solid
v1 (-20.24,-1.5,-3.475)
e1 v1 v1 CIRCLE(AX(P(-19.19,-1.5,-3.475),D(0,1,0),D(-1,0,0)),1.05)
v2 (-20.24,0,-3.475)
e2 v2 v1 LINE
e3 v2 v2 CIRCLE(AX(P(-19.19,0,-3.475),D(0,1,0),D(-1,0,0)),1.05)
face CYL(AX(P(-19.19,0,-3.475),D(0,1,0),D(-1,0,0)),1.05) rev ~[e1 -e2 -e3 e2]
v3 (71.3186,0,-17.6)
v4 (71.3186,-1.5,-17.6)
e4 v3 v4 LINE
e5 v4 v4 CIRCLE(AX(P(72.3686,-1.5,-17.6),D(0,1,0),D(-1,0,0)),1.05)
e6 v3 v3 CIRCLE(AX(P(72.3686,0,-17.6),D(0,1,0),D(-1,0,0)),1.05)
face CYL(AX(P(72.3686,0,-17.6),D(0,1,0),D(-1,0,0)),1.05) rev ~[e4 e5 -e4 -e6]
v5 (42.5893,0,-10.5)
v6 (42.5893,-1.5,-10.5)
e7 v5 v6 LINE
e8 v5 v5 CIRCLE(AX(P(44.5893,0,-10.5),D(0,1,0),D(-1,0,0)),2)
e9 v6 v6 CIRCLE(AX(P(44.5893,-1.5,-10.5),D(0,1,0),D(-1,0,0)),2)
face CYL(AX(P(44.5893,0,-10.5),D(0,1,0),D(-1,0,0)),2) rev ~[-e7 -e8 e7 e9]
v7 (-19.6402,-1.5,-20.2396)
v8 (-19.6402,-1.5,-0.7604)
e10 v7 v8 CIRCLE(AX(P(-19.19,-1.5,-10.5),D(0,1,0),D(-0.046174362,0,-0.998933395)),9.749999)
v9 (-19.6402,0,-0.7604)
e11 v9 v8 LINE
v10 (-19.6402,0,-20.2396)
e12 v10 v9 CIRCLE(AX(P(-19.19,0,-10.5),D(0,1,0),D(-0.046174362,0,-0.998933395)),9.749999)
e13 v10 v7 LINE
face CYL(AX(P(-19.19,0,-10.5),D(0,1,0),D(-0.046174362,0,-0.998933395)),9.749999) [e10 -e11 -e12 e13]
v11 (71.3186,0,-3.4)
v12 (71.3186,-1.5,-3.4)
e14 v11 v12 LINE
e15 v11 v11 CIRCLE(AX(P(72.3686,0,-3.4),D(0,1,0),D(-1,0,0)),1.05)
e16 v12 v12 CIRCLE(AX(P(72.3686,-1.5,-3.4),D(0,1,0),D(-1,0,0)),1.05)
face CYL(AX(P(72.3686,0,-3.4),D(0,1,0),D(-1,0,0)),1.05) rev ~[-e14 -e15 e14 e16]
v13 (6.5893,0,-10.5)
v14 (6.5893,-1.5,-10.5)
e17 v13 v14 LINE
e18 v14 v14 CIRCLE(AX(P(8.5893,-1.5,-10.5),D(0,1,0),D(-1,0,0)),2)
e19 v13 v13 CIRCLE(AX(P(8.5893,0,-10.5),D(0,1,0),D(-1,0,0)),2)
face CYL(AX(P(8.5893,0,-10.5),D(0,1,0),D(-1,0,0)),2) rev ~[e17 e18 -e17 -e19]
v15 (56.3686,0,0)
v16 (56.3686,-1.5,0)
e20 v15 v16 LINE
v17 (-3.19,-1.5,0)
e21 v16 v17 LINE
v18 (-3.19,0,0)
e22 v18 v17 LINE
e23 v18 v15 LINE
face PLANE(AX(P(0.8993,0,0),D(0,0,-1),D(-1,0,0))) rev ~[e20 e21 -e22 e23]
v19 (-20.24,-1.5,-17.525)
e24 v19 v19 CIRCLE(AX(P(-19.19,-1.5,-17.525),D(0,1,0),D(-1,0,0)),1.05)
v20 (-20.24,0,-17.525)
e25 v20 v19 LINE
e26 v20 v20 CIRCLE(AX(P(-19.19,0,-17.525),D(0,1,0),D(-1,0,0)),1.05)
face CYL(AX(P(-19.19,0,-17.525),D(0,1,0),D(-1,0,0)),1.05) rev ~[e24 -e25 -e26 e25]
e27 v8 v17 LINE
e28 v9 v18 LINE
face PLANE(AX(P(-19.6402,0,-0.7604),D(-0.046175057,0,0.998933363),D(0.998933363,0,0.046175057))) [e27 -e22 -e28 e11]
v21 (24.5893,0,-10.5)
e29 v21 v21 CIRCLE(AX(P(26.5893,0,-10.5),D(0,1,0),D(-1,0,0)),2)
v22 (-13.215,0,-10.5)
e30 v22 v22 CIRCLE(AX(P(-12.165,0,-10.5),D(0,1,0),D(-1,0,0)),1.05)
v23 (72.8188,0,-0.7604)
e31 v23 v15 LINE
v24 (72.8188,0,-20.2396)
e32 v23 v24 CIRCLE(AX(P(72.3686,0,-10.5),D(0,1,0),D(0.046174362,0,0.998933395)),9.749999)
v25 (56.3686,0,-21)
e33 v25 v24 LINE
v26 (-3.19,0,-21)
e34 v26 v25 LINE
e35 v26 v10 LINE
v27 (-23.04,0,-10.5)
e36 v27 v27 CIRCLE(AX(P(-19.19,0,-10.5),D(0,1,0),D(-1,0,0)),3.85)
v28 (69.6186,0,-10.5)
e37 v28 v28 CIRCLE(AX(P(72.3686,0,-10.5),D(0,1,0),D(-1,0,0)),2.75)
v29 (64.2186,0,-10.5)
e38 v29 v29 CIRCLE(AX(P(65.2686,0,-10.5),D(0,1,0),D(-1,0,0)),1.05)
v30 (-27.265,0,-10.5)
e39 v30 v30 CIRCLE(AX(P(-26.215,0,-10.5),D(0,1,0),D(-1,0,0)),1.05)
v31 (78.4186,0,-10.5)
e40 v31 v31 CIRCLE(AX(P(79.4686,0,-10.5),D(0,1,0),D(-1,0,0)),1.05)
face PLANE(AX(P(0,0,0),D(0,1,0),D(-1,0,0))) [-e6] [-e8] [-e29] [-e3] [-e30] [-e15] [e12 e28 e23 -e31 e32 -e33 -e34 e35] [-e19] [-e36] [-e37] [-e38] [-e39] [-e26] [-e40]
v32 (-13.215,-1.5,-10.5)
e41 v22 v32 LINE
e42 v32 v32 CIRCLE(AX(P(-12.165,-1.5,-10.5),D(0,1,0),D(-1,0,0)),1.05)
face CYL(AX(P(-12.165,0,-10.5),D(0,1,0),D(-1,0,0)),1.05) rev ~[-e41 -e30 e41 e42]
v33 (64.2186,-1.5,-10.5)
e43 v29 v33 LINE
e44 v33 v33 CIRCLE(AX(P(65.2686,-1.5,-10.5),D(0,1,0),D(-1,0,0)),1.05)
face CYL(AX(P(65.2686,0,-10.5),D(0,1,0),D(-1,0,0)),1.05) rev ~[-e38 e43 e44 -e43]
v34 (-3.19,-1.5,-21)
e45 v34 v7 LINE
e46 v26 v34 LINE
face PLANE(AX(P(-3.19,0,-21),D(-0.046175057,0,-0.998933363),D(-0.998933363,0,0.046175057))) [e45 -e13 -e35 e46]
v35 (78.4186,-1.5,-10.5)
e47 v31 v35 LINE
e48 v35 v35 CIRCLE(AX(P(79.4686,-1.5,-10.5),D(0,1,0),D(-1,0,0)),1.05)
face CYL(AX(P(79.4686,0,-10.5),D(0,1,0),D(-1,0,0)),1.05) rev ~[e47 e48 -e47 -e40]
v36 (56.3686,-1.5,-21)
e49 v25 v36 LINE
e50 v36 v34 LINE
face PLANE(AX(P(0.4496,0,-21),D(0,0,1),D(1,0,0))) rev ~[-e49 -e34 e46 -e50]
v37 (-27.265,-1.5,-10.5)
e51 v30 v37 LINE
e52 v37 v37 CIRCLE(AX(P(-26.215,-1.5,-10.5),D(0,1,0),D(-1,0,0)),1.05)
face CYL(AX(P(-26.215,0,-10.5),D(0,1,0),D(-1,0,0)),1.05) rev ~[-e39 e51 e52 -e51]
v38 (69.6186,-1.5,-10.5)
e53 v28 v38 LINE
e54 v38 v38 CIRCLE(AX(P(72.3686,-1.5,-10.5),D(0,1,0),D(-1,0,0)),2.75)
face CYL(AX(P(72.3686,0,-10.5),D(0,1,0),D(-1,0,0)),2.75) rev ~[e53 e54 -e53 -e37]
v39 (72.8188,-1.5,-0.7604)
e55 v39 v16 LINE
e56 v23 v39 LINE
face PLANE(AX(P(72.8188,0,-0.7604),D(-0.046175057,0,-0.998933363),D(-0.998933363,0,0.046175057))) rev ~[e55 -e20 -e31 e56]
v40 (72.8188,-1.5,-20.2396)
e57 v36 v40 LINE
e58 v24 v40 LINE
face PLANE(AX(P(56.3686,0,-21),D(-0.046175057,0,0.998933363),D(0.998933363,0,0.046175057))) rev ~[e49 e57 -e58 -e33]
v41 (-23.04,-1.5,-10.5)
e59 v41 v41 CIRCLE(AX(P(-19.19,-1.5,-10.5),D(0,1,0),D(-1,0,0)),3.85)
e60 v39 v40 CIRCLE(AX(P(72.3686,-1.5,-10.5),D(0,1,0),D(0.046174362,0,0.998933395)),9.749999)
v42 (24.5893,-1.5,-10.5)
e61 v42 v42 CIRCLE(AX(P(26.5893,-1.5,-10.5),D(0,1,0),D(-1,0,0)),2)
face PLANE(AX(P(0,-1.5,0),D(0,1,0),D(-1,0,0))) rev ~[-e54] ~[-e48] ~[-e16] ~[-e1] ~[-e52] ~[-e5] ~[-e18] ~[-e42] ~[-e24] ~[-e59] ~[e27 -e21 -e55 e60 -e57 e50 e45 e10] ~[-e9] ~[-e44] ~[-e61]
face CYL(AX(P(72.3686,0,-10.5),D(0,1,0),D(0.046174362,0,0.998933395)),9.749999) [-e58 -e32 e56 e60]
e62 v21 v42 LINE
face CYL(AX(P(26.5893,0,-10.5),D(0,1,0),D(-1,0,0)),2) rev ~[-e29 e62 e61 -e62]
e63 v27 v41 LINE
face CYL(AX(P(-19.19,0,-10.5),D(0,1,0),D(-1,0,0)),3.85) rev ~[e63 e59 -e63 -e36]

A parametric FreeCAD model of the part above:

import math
import FreeCAD as App
import Part
import Sketcher
from FreeCAD import Vector
Q = App.Units.Quantity

doc = App.newDocument("Part")
body = doc.addObject("PartDesign::Body", "Body")

sketch1 = doc.addObject("Sketcher::SketchObject", "Sketch")
body.addObject(sketch1)
sketch1.AttachmentSupport = (doc.XZ_Plane, [""])
sketch1.MapMode = "FlatFace"
sketch1.addGeometry(Part.LineSegment(Vector(-3.2, -21, 0), Vector(-19.6, -20.2, 0)), False)
sketch1.addGeometry(Part.ArcOfCircle(Part.Circle(Vector(-19.2, -10.5, 0), Vector(0, 0, 1), 9.7), math.radians(93), math.radians(267)), False)
sketch1.addGeometry(Part.LineSegment(Vector(-19.6, -0.8, 0), Vector(-3.2, 0, 0)), False)
sketch1.addGeometry(Part.LineSegment(Vector(-3.2, 0, 0), Vector(56.4, 0, 0)), False)
sketch1.addGeometry(Part.LineSegment(Vector(56.4, 0, 0), Vector(72.8, -0.8, 0)), False)
sketch1.addGeometry(Part.ArcOfCircle(Part.Circle(Vector(72.4, -10.5, 0), Vector(0, 0, 1), 9.7), math.radians(-87), math.radians(87)), False)
sketch1.addGeometry(Part.LineSegment(Vector(72.8, -20.2, 0), Vector(56.4, -21, 0)), False)
sketch1.addGeometry(Part.LineSegment(Vector(56.4, -21, 0), Vector(-3.2, -21, 0)), False)
sketch1.addGeometry(Part.Circle(Vector(8.6, -10.5, 0), Vector(0, 0, 1), 2), False)
sketch1.addGeometry(Part.Circle(Vector(44.6, -10.5, 0), Vector(0, 0, 1), 2), False)
sketch1.addGeometry(Part.Circle(Vector(26.6, -10.5, 0), Vector(0, 0, 1), 2), False)
sketch1.addGeometry(Part.Circle(Vector(-19.2, -3.5, 0), Vector(0, 0, 1), 1.1), False)
sketch1.addGeometry(Part.Circle(Vector(-19.2, -17.5, 0), Vector(0, 0, 1), 1.1), False)
sketch1.addGeometry(Part.Circle(Vector(-12.2, -10.5, 0), Vector(0, 0, 1), 1.1), False)
sketch1.addGeometry(Part.Circle(Vector(-19.2, -10.5, 0), Vector(0, 0, 1), 3.9), False)
sketch1.addGeometry(Part.Circle(Vector(-26.2, -10.5, 0), Vector(0, 0, 1), 1.1), False)
sketch1.addGeometry(Part.Circle(Vector(72.4, -3.4, 0), Vector(0, 0, 1), 1.1), False)
sketch1.addGeometry(Part.Circle(Vector(72.4, -17.6, 0), Vector(0, 0, 1), 1.1), False)
sketch1.addGeometry(Part.Circle(Vector(79.5, -10.5, 0), Vector(0, 0, 1), 1.1), False)
sketch1.addGeometry(Part.Circle(Vector(72.4, -10.5, 0), Vector(0, 0, 1), 2.8), False)
sketch1.addGeometry(Part.Circle(Vector(65.3, -10.5, 0), Vector(0, 0, 1), 1.1), False)
sketch1.addConstraint(Sketcher.Constraint("Tangent", 0, 2, 1, 2))
sketch1.addConstraint(Sketcher.Constraint("Tangent", 1, 1, 2, 1))
sketch1.addConstraint(Sketcher.Constraint("Coincident", 2, 2, 3, 1))
sketch1.addConstraint(Sketcher.Constraint("Coincident", 3, 2, 4, 1))
sketch1.addConstraint(Sketcher.Constraint("Tangent", 4, 2, 5, 2))
sketch1.addConstraint(Sketcher.Constraint("Tangent", 5, 1, 6, 1))
sketch1.addConstraint(Sketcher.Constraint("Coincident", 6, 2, 7, 1))
sketch1.addConstraint(Sketcher.Constraint("Coincident", 7, 2, 0, 1))
sketch1.addConstraint(Sketcher.Constraint("Horizontal", 3))
sketch1.addConstraint(Sketcher.Constraint("Horizontal", 7))
sketch1.addConstraint(Sketcher.Constraint("Coincident", 14, 3, 1, 3))
sketch1.addConstraint(Sketcher.Constraint("Coincident", 19, 3, 5, 3))
sketch1.addConstraint(Sketcher.Constraint("Equal", 1, 5))
sketch1.addConstraint(Sketcher.Constraint("Equal", 8, 9))
sketch1.addConstraint(Sketcher.Constraint("Equal", 9, 10))
sketch1.addConstraint(Sketcher.Constraint("Equal", 11, 12))
sketch1.addConstraint(Sketcher.Constraint("Equal", 12, 13))
sketch1.addConstraint(Sketcher.Constraint("Equal", 13, 15))
sketch1.addConstraint(Sketcher.Constraint("Equal", 15, 16))
sketch1.addConstraint(Sketcher.Constraint("Equal", 16, 17))
sketch1.addConstraint(Sketcher.Constraint("Equal", 17, 18))
sketch1.addConstraint(Sketcher.Constraint("Equal", 18, 20))
sketch1.addConstraint(Sketcher.Constraint("PointOnObject", 2, 2, -1))
sketch1.addConstraint(Sketcher.Constraint("Parallel", 0, 4))
sketch1.addConstraint(Sketcher.Constraint("Parallel", 2, 6))
sketch1.addConstraint(Sketcher.Constraint("Horizontal", 1, 3, 5, 3))
sketch1.addConstraint(Sketcher.Constraint("Horizontal", 5, 3, 8, 3))
sketch1.addConstraint(Sketcher.Constraint("Horizontal", 8, 3, 9, 3))
sketch1.addConstraint(Sketcher.Constraint("Horizontal", 9, 3, 10, 3))
sketch1.addConstraint(Sketcher.Constraint("Horizontal", 10, 3, 13, 3))
sketch1.addConstraint(Sketcher.Constraint("Horizontal", 14, 3, 15, 3))
sketch1.addConstraint(Sketcher.Constraint("Horizontal", 15, 3, 18, 3))
sketch1.addConstraint(Sketcher.Constraint("Horizontal", 19, 3, 20, 3))
sketch1.addConstraint(Sketcher.Constraint("Vertical", 1, 3, 11, 3))
sketch1.addConstraint(Sketcher.Constraint("Vertical", 11, 3, 12, 3))
sketch1.addConstraint(Sketcher.Constraint("Vertical", 5, 3, 16, 3))
sketch1.addConstraint(Sketcher.Constraint("Vertical", 16, 3, 17, 3))
sketch1.addConstraint(Sketcher.Constraint("Vertical", 3, 2, 6, 2))
sketch1.addConstraint(Sketcher.Constraint("Vertical", 2, 2, 7, 2))
sketch1.addConstraint(Sketcher.Constraint("Diameter", 8, Q("4 mm")))
sketch1.addConstraint(Sketcher.Constraint("Diameter", 11, Q("2.1 mm")))
sketch1.addConstraint(Sketcher.Constraint("Diameter", 14, Q("7.7 mm")))
sketch1.addConstraint(Sketcher.Constraint("Diameter", 19, Q("5.5 mm")))
sketch1.addConstraint(Sketcher.Constraint("Radius", 1, Q("9.75 mm")))
sketch1.addConstraint(Sketcher.Constraint("DistanceY", 6, 2, -1, 1, Q("21 mm")))
sketch1.addConstraint(Sketcher.Constraint("DistanceX", 8, 3, 9, 3, Q("36 mm")))
sketch1.addConstraint(Sketcher.Constraint("DistanceX", 8, 3, 10, 3, Q("18 mm")))
sketch1.addConstraint(Sketcher.Constraint("DistanceX", 11, 3, 2, 2, Q("16 mm")))
sketch1.addConstraint(Sketcher.Constraint("DistanceY", 16, 3, -1, 1, Q("3.4 mm")))
sketch1.addConstraint(Sketcher.Constraint("DistanceY", 17, 3, -1, 1, Q("17.6 mm")))
sketch1.addConstraint(Sketcher.Constraint("DistanceX", 5, 3, 18, 3, Q("7.1 mm")))
sketch1.addConstraint(Sketcher.Constraint("DistanceX", 20, 3, 5, 3, Q("7.1 mm")))
sketch1.addConstraint(Sketcher.Constraint("DistanceX", 1, 3, -1, 1, Q("19.19 mm")))
sketch1.addConstraint(Sketcher.Constraint("DistanceY", 12, 3, 11, 3, Q("14.05 mm")))
sketch1.addConstraint(Sketcher.Constraint("DistanceX", 15, 3, 13, 3, Q("14.05 mm")))
sketch1.addConstraint(Sketcher.Constraint("DistanceX", 3, 1, 3, 2, Q("59.5586 mm")))
sketch1.addConstraint(Sketcher.Constraint("DistanceY", 11, 3, -1, 1, Q("3.475 mm")))
sketch1.addConstraint(Sketcher.Constraint("DistanceX", 13, 3, -1, 1, Q("12.165 mm")))
sketch1.addConstraint(Sketcher.Constraint("DistanceX", -1, 1, 8, 3, Q("8.5893 mm")))
pad1 = doc.addObject("PartDesign::Pad", "Pad")
body.addObject(pad1)
pad1.Profile = sketch1
pad1.Length = 1.5

doc.recompute()
